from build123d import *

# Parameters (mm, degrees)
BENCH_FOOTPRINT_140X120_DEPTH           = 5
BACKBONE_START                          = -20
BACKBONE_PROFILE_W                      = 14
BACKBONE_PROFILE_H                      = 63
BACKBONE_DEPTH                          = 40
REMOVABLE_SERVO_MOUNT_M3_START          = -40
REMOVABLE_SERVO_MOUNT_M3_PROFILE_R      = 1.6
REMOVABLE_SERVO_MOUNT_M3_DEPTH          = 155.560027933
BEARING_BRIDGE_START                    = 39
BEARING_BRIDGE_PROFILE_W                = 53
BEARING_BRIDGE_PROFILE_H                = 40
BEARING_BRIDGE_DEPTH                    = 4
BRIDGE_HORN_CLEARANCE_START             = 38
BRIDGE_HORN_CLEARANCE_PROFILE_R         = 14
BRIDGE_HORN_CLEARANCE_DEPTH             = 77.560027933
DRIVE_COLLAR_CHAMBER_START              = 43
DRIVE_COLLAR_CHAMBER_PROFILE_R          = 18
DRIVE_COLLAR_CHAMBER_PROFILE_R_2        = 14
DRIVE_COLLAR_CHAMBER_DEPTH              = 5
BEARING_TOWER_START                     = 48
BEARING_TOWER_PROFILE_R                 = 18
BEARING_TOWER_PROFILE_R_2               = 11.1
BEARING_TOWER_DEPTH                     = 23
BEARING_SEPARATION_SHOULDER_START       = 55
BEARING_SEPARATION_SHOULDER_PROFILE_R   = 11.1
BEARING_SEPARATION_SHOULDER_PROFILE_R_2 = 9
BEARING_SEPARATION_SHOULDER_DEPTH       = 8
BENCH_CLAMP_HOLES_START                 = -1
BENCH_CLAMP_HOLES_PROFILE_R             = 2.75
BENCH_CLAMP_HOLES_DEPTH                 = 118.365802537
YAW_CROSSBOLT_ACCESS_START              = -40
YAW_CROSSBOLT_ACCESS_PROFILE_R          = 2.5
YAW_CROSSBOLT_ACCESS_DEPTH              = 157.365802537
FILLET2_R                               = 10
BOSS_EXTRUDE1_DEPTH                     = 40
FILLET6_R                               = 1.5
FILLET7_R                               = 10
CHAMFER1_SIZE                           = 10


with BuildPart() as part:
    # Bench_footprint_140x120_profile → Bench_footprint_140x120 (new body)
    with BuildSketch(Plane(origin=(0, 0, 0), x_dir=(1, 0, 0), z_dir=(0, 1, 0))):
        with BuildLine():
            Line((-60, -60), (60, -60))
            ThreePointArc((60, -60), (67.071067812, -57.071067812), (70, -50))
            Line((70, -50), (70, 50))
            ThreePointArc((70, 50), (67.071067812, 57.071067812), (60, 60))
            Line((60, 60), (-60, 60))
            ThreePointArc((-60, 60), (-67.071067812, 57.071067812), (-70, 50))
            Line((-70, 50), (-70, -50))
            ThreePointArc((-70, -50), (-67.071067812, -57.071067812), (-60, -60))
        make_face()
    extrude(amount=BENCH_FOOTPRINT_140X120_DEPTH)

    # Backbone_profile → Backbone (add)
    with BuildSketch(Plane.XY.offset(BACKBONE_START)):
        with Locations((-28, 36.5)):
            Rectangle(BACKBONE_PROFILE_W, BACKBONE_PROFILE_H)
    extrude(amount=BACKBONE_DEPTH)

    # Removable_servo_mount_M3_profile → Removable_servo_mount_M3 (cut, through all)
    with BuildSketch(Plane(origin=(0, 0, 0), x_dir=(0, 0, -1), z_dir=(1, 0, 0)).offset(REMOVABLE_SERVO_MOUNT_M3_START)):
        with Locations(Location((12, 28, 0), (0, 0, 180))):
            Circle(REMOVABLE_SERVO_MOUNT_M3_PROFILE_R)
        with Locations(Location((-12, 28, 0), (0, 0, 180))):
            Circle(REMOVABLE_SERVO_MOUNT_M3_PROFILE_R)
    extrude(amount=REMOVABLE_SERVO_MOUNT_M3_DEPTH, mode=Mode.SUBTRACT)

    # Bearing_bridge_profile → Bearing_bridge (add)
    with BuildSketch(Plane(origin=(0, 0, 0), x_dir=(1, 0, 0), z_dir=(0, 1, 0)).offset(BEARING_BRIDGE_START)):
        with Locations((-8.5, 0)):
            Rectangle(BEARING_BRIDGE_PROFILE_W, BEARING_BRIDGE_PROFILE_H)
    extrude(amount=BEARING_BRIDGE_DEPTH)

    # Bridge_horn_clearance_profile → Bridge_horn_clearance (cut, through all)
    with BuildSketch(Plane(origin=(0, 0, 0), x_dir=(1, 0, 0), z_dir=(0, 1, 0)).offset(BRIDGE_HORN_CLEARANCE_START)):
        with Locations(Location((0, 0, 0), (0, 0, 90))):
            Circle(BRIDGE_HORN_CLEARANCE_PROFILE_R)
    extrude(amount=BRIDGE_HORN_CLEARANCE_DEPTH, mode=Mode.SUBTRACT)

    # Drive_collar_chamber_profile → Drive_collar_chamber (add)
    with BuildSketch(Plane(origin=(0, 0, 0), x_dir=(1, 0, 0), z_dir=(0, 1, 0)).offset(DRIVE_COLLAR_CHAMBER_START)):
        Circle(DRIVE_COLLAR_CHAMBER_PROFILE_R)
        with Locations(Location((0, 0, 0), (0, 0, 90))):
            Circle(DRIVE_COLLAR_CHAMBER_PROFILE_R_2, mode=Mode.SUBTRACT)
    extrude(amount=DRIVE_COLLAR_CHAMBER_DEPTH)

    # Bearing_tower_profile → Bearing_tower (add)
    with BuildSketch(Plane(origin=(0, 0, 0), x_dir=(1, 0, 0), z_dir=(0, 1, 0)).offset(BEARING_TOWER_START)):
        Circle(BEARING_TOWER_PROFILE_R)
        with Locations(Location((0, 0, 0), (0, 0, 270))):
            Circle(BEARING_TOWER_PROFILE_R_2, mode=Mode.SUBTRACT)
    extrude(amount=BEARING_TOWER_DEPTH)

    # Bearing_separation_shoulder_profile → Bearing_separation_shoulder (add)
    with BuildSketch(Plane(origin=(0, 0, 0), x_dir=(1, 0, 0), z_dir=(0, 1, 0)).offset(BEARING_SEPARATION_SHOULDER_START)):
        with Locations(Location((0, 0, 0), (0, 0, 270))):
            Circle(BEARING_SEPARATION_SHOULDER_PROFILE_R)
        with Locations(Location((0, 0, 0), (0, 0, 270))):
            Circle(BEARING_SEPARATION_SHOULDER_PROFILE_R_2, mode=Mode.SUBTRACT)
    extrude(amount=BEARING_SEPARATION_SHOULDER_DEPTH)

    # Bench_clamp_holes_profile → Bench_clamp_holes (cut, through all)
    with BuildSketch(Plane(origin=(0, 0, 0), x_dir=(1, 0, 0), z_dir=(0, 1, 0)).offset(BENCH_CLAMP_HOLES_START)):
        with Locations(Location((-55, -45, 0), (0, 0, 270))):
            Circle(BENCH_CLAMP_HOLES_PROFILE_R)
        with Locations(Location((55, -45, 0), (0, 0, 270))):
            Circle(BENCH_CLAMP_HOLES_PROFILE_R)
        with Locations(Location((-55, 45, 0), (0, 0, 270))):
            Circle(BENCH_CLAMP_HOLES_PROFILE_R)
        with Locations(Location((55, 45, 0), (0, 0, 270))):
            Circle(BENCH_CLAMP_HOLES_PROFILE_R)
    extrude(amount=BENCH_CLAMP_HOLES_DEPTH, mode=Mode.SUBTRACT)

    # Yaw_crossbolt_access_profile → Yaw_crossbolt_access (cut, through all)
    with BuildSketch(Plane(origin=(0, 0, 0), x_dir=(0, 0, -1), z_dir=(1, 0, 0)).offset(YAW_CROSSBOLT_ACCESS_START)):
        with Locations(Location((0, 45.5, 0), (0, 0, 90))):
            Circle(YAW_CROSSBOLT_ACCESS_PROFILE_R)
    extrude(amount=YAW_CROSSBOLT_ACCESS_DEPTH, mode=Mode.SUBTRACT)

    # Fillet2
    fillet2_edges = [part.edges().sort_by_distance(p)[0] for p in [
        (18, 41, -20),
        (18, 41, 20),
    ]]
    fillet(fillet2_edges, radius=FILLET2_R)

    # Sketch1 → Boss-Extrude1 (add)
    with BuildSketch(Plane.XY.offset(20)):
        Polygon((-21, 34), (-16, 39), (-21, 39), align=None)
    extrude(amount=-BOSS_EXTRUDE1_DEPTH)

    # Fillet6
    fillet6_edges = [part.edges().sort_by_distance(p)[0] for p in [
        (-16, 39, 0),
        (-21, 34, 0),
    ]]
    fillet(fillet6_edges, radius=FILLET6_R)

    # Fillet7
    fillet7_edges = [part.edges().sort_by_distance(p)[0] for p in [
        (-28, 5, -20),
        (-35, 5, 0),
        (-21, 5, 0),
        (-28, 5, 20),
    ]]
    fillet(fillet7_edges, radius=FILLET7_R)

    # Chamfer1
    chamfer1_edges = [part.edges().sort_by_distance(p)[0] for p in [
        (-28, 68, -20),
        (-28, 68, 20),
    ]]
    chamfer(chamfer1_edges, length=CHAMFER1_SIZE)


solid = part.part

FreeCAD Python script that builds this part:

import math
import FreeCAD as App
import Part
import Sketcher
Q = App.Units.Quantity


def edges_at(feature, points):
    """Names of the edges that pass closest to the given points."""
    edges = feature.Shape.Edges
    near = lambda p: min(range(len(edges)), key=lambda i: edges[i].distToShape(Part.Vertex(*p))[0])
    return sorted({f"Edge{near(p) + 1}" for p in points})

doc = App.newDocument("Part")
body = doc.addObject("PartDesign::Body", "Body")

# Sketch on XZ plane
sketch1 = body.newObject("Sketcher::SketchObject", "Sketch")
sketch1.AttachmentSupport = (doc.getObject("XZ_Plane"), [""])
sketch1.MapMode = "FlatFace"
sketch1.addGeometry([
    Part.LineSegment(App.Vector(-60, 60, 0), App.Vector(60, 60, 0)),  # 0
    Part.ArcOfCircle(Part.Circle(App.Vector(60, 50, 0), App.Vector(0, 0, 1), 10), math.radians(0), math.radians(90)),  # 1
    Part.LineSegment(App.Vector(70, 50, 0), App.Vector(70, -50, 0)),  # 2
    Part.ArcOfCircle(Part.Circle(App.Vector(60, -50, 0), App.Vector(0, 0, 1), 10), math.radians(-90), math.radians(0)),  # 3
    Part.LineSegment(App.Vector(60, -60, 0), App.Vector(-60, -60, 0)),  # 4
    Part.ArcOfCircle(Part.Circle(App.Vector(-60, -50, 0), App.Vector(0, 0, 1), 10), math.radians(180), math.radians(270)),  # 5
    Part.LineSegment(App.Vector(-70, -50, 0), App.Vector(-70, 50, 0)),  # 6
    Part.ArcOfCircle(Part.Circle(App.Vector(-60, 50, 0), App.Vector(0, 0, 1), 10), math.radians(90), math.radians(180)),  # 7
], False)
sketch1.addConstraint([
    Sketcher.Constraint("Tangent", 0, 2, 1, 2),
    Sketcher.Constraint("Tangent", 1, 1, 2, 1),
    Sketcher.Constraint("Tangent", 2, 2, 3, 2),
    Sketcher.Constraint("Tangent", 3, 1, 4, 1),
    Sketcher.Constraint("Tangent", 4, 2, 5, 2),
    Sketcher.Constraint("Tangent", 5, 1, 6, 1),
    Sketcher.Constraint("Tangent", 6, 2, 7, 2),
    Sketcher.Constraint("Tangent", 7, 1, 0, 1),
    Sketcher.Constraint("Horizontal", 0),
    Sketcher.Constraint("Vertical", 2),
    Sketcher.Constraint("Horizontal", 4),
    Sketcher.Constraint("Vertical", 6),
    Sketcher.Constraint("Equal", 1, 3),
    Sketcher.Constraint("Equal", 3, 5),
    Sketcher.Constraint("Equal", 5, 7),
    Sketcher.Constraint("Symmetric", 1, 3, 5, 3, -1, 1),
    Sketcher.Constraint("Radius", 1, Q("10 mm")),
    Sketcher.Constraint("DistanceX", 0, 1, 0, 2, Q("120 mm")),
    Sketcher.Constraint("DistanceY", 2, 2, 2, 1, Q("100 mm")),
])
pad1 = body.newObject("PartDesign::Pad", "Pad")
pad1.Profile = sketch1
pad1.Length = 5
pad1.Reversed = True

# Sketch on XY plane
sketch2 = body.newObject("Sketcher::SketchObject", "Sketch001")
sketch2.AttachmentSupport = (doc.getObject("XY_Plane"), [""])
sketch2.MapMode = "FlatFace"
sketch2.AttachmentOffset = App.Placement(App.Vector(0, 0, -20), App.Rotation())
sketch2.addGeometry([
    Part.LineSegment(App.Vector(-35, 68, 0), App.Vector(-35, 5, 0)),
    Part.LineSegment(App.Vector(-35, 5, 0), App.Vector(-21, 5, 0)),
    Part.LineSegment(App.Vector(-21, 5, 0), App.Vector(-21, 68, 0)),
    Part.LineSegment(App.Vector(-21, 68, 0), App.Vector(-35, 68, 0)),
], False)
sketch2.addConstraint([
    Sketcher.Constraint("Coincident", 0, 2, 1, 1),
    Sketcher.Constraint("Coincident", 1, 2, 2, 1),
    Sketcher.Constraint("Coincident", 2, 2, 3, 1),
    Sketcher.Constraint("Coincident", 3, 2, 0, 1),
    Sketcher.Constraint("Vertical", 0),
    Sketcher.Constraint("Horizontal", 1),
    Sketcher.Constraint("Vertical", 2),
    Sketcher.Constraint("Horizontal", 3),
    Sketcher.Constraint("DistanceX", 1, 1, 1, 2, Q("14 mm")),
    Sketcher.Constraint("DistanceY", 0, 2, 0, 1, Q("63 mm")),
    Sketcher.Constraint("DistanceX", 0, 2, -1, 1, Q("35 mm")),
    Sketcher.Constraint("DistanceY", -1, 1, 0, 2, Q("5 mm")),
])
pad2 = body.newObject("PartDesign::Pad", "Pad001")
pad2.Profile = sketch2
pad2.Length = 40

# Sketch on YZ plane
sketch3 = body.newObject("Sketcher::SketchObject", "Sketch002")
sketch3.AttachmentSupport = (doc.getObject("YZ_Plane"), [""])
sketch3.MapMode = "FlatFace"
sketch3.AttachmentOffset = App.Placement(App.Vector(0, 0, -40), App.Rotation())
sketch3.addGeometry([
    Part.Circle(App.Vector(28, -12, 0), App.Vector(0, 0, 1), 1.6),
    Part.Circle(App.Vector(28, 12, 0), App.Vector(0, 0, 1), 1.6),
], False)
sketch3.addConstraint([
    Sketcher.Constraint("Equal", 0, 1),
    Sketcher.Constraint("Symmetric", 0, 3, 1, 3, -1),
    Sketcher.Constraint("Diameter", 0, Q("3.2 mm")),
    Sketcher.Constraint("DistanceX", -1, 1, 0, 3, Q("28 mm")),
    Sketcher.Constraint("DistanceY", 0, 3, -1, 1, Q("12 mm")),
])
pocket1 = body.newObject("PartDesign::Pocket", "Pocket")
pocket1.Profile = sketch3
pocket1.Type = "ThroughAll"
pocket1.Reversed = True

# Sketch on XZ plane
sketch4 = body.newObject("Sketcher::SketchObject", "Sketch003")
sketch4.AttachmentSupport = (doc.getObject("XZ_Plane"), [""])
sketch4.MapMode = "FlatFace"
sketch4.AttachmentOffset = App.Placement(App.Vector(0, 0, -39), App.Rotation())
sketch4.addGeometry([
    Part.LineSegment(App.Vector(-35, -20, 0), App.Vector(-35, 20, 0)),
    Part.LineSegment(App.Vector(-35, 20, 0), App.Vector(18, 20, 0)),
    Part.LineSegment(App.Vector(18, 20, 0), App.Vector(18, -20, 0)),
    Part.LineSegment(App.Vector(18, -20, 0), App.Vector(-35, -20, 0)),
], False)
sketch4.addConstraint([
    Sketcher.Constraint("Coincident", 0, 2, 1, 1),
    Sketcher.Constraint("Coincident", 1, 2, 2, 1),
    Sketcher.Constraint("Coincident", 2, 2, 3, 1),
    Sketcher.Constraint("Coincident", 3, 2, 0, 1),
    Sketcher.Constraint("Vertical", 0),
    Sketcher.Constraint("Horizontal", 1),
    Sketcher.Constraint("Vertical", 2),
    Sketcher.Constraint("Horizontal", 3),
    Sketcher.Constraint("DistanceX", 1, 1, 1, 2, Q("53 mm")),
    Sketcher.Constraint("DistanceY", 0, 1, 0, 2, Q("40 mm")),
    Sketcher.Constraint("DistanceX", 0, 2, -1, 1, Q("35 mm")),
    Sketcher.Constraint("DistanceY", -1, 1, 0, 2, Q("20 mm")),
])
pad3 = body.newObject("PartDesign::Pad", "Pad002")
pad3.Profile = sketch4
pad3.Length = 4
pad3.Reversed = True

# Sketch on XZ plane
sketch5 = body.newObject("Sketcher::SketchObject", "Sketch004")
sketch5.AttachmentSupport = (doc.getObject("XZ_Plane"), [""])
sketch5.MapMode = "FlatFace"
sketch5.AttachmentOffset = App.Placement(App.Vector(0, 0, -38), App.Rotation())
sketch5.addGeometry(Part.Circle(App.Vector(0, 0, 0), App.Vector(0, 0, 1), 14), False)
sketch5.addConstraint([
    Sketcher.Constraint("Coincident", 0, 3, -1, 1),
    Sketcher.Constraint("Diameter", 0, Q("28 mm")),
])
pocket2 = body.newObject("PartDesign::Pocket", "Pocket001")
pocket2.Profile = sketch5
pocket2.Type = "ThroughAll"

# Sketch on XZ plane
sketch6 = body.newObject("Sketcher::SketchObject", "Sketch005")
sketch6.AttachmentSupport = (doc.getObject("XZ_Plane"), [""])
sketch6.MapMode = "FlatFace"
sketch6.AttachmentOffset = App.Placement(App.Vector(0, 0, -43), App.Rotation())
sketch6.addGeometry([
    Part.Circle(App.Vector(0, 0, 0), App.Vector(0, 0, 1), 18),
    Part.Circle(App.Vector(0, 0, 0), App.Vector(0, 0, 1), 14),
], False)
sketch6.addConstraint([
    Sketcher.Constraint("Coincident", 0, 3, -1, 1),
    Sketcher.Constraint("Coincident", 1, 3, -1, 1),
    Sketcher.Constraint("Diameter", 0, Q("36 mm")),
    Sketcher.Constraint("Diameter", 1, Q("28 mm")),
])
pad4 = body.newObject("PartDesign::Pad", "Pad003")
pad4.Profile = sketch6
pad4.Length = 5
pad4.Reversed = True

# Sketch on XZ plane
sketch7 = body.newObject("Sketcher::SketchObject", "Sketch006")
sketch7.AttachmentSupport = (doc.getObject("XZ_Plane"), [""])
sketch7.MapMode = "FlatFace"
sketch7.AttachmentOffset = App.Placement(App.Vector(0, 0, -48), App.Rotation())
sketch7.addGeometry([
    Part.Circle(App.Vector(0, 0, 0), App.Vector(0, 0, 1), 18),
    Part.Circle(App.Vector(0, 0, 0), App.Vector(0, 0, 1), 11),
], False)
sketch7.addConstraint([
    Sketcher.Constraint("Coincident", 0, 3, -1, 1),
    Sketcher.Constraint("Coincident", 1, 3, -1, 1),
    Sketcher.Constraint("Diameter", 0, Q("36 mm")),
    Sketcher.Constraint("Diameter", 1, Q("22.2 mm")),
])
pad5 = body.newObject("PartDesign::Pad", "Pad004")
pad5.Profile = sketch7
pad5.Length = 23
pad5.Reversed = True

# Sketch on XZ plane
sketch8 = body.newObject("Sketcher::SketchObject", "Sketch007")
sketch8.AttachmentSupport = (doc.getObject("XZ_Plane"), [""])
sketch8.MapMode = "FlatFace"
sketch8.AttachmentOffset = App.Placement(App.Vector(0, 0, -55), App.Rotation())
sketch8.addGeometry([
    Part.Circle(App.Vector(0, 0, 0), App.Vector(0, 0, 1), 11),
    Part.Circle(App.Vector(0, 0, 0), App.Vector(0, 0, 1), 9),
], False)
sketch8.addConstraint([
    Sketcher.Constraint("Coincident", 0, 3, -1, 1),
    Sketcher.Constraint("Coincident", 1, 3, -1, 1),
    Sketcher.Constraint("Diameter", 1, Q("18 mm")),
    Sketcher.Constraint("Diameter", 0, Q("22.2 mm")),
])
pad6 = body.newObject("PartDesign::Pad", "Pad005")
pad6.Profile = sketch8
pad6.Length = 8
pad6.Reversed = True

# Sketch on XZ plane
sketch9 = body.newObject("Sketcher::SketchObject", "Sketch008")
sketch9.AttachmentSupport = (doc.getObject("XZ_Plane"), [""])
sketch9.MapMode = "FlatFace"
sketch9.AttachmentOffset = App.Placement(App.Vector(0, 0, 1), App.Rotation())
sketch9.addGeometry([
    Part.Circle(App.Vector(-55, 45, 0), App.Vector(0, 0, 1), 2.8),
    Part.Circle(App.Vector(55, 45, 0), App.Vector(0, 0, 1), 2.8),
    Part.Circle(App.Vector(-55, -45, 0), App.Vector(0, 0, 1), 2.8),
    Part.Circle(App.Vector(55, -45, 0), App.Vector(0, 0, 1), 2.8),
], False)
sketch9.addConstraint([
    Sketcher.Constraint("Equal", 0, 1),
    Sketcher.Constraint("Equal", 1, 2),
    Sketcher.Constraint("Equal", 2, 3),
    Sketcher.Constraint("Symmetric", 1, 3, 2, 3, -1, 1),
    Sketcher.Constraint("Symmetric", 0, 3, 3, 3, -1, 1),
    Sketcher.Constraint("Symmetric", 0, 3, 1, 3, -2),
    Sketcher.Constraint("Diameter", 0, Q("5.5 mm")),
    Sketcher.Constraint("DistanceX", 0, 3, -1, 1, Q("55 mm")),
    Sketcher.Constraint("DistanceY", -1, 1, 0, 3, Q("45 mm")),
])
pocket3 = body.newObject("PartDesign::Pocket", "Pocket002")
pocket3.Profile = sketch9
pocket3.Type = "ThroughAll"

# Sketch on YZ plane
sketch10 = body.newObject("Sketcher::SketchObject", "Sketch009")
sketch10.AttachmentSupport = (doc.getObject("YZ_Plane"), [""])
sketch10.MapMode = "FlatFace"
sketch10.AttachmentOffset = App.Placement(App.Vector(0, 0, -40), App.Rotation())
sketch10.addGeometry(Part.Circle(App.Vector(45.5, 0, 0), App.Vector(0, 0, 1), 2.5), False)
sketch10.addConstraint([
    Sketcher.Constraint("PointOnObject", 0, 3, -1),
    Sketcher.Constraint("Diameter", 0, Q("5 mm")),
    Sketcher.Constraint("DistanceX", -1, 1, 0, 3, Q("45.5 mm")),
])
pocket4 = body.newObject("PartDesign::Pocket", "Pocket003")
pocket4.Profile = sketch10
pocket4.Type = "ThroughAll"
pocket4.Reversed = True
doc.recompute()

fillet = body.newObject("PartDesign::Fillet", "Fillet")
fillet.Base = (pocket4, edges_at(pocket4, [(18, 41, -20), (18, 41, 20)]))
fillet.Radius = 10

# Sketch on XY plane
sketch11 = body.newObject("Sketcher::SketchObject", "Sketch010")
sketch11.AttachmentSupport = (doc.getObject("XY_Plane"), [""])
sketch11.MapMode = "FlatFace"
sketch11.AttachmentOffset = App.Placement(App.Vector(0, 0, 20), App.Rotation())
sketch11.addGeometry([
    Part.LineSegment(App.Vector(-21, 34, 0), App.Vector(-16, 39, 0)),
    Part.LineSegment(App.Vector(-16, 39, 0), App.Vector(-21, 39, 0)),
    Part.LineSegment(App.Vector(-21, 39, 0), App.Vector(-21, 34, 0)),
], False)
sketch11.addConstraint([
    Sketcher.Constraint("Coincident", 0, 2, 1, 1),
    Sketcher.Constraint("Coincident", 1, 2, 2, 1),
    Sketcher.Constraint("Coincident", 2, 2, 0, 1),
    Sketcher.Constraint("Horizontal", 1),
    Sketcher.Constraint("Vertical", 2),
    Sketcher.Constraint("Equal", 1, 2),
    Sketcher.Constraint("DistanceX", 1, 2, 1, 1, Q("5 mm")),
    Sketcher.Constraint("DistanceX", 0, 2, -1, 1, Q("16 mm")),
    Sketcher.Constraint("DistanceY", -1, 1, 0, 2, Q("39 mm")),
])
pad7 = body.newObject("PartDesign::Pad", "Pad006")
pad7.Profile = sketch11
pad7.Length = 40
pad7.Reversed = True
doc.recompute()

fillet2 = body.newObject("PartDesign::Fillet", "Fillet001")
fillet2.Base = (pad7, edges_at(pad7, [(-16, 39, 0), (-21, 34, 0)]))
fillet2.Radius = 1.5
doc.recompute()

fillet3 = body.newObject("PartDesign::Fillet", "Fillet002")
fillet3.Base = (fillet2, edges_at(fillet2, [
    (-28, 5, -20),
    (-35, 5, 0),
    (-21, 5, 0),
    (-28, 5, 20),
]))
fillet3.Radius = 10
doc.recompute()

chamfer = body.newObject("PartDesign::Chamfer", "Chamfer")
chamfer.Base = (fillet3, edges_at(fillet3, [(-28, 68, -20), (-28, 68, 20)]))
chamfer.Size = 10

doc.recompute()
